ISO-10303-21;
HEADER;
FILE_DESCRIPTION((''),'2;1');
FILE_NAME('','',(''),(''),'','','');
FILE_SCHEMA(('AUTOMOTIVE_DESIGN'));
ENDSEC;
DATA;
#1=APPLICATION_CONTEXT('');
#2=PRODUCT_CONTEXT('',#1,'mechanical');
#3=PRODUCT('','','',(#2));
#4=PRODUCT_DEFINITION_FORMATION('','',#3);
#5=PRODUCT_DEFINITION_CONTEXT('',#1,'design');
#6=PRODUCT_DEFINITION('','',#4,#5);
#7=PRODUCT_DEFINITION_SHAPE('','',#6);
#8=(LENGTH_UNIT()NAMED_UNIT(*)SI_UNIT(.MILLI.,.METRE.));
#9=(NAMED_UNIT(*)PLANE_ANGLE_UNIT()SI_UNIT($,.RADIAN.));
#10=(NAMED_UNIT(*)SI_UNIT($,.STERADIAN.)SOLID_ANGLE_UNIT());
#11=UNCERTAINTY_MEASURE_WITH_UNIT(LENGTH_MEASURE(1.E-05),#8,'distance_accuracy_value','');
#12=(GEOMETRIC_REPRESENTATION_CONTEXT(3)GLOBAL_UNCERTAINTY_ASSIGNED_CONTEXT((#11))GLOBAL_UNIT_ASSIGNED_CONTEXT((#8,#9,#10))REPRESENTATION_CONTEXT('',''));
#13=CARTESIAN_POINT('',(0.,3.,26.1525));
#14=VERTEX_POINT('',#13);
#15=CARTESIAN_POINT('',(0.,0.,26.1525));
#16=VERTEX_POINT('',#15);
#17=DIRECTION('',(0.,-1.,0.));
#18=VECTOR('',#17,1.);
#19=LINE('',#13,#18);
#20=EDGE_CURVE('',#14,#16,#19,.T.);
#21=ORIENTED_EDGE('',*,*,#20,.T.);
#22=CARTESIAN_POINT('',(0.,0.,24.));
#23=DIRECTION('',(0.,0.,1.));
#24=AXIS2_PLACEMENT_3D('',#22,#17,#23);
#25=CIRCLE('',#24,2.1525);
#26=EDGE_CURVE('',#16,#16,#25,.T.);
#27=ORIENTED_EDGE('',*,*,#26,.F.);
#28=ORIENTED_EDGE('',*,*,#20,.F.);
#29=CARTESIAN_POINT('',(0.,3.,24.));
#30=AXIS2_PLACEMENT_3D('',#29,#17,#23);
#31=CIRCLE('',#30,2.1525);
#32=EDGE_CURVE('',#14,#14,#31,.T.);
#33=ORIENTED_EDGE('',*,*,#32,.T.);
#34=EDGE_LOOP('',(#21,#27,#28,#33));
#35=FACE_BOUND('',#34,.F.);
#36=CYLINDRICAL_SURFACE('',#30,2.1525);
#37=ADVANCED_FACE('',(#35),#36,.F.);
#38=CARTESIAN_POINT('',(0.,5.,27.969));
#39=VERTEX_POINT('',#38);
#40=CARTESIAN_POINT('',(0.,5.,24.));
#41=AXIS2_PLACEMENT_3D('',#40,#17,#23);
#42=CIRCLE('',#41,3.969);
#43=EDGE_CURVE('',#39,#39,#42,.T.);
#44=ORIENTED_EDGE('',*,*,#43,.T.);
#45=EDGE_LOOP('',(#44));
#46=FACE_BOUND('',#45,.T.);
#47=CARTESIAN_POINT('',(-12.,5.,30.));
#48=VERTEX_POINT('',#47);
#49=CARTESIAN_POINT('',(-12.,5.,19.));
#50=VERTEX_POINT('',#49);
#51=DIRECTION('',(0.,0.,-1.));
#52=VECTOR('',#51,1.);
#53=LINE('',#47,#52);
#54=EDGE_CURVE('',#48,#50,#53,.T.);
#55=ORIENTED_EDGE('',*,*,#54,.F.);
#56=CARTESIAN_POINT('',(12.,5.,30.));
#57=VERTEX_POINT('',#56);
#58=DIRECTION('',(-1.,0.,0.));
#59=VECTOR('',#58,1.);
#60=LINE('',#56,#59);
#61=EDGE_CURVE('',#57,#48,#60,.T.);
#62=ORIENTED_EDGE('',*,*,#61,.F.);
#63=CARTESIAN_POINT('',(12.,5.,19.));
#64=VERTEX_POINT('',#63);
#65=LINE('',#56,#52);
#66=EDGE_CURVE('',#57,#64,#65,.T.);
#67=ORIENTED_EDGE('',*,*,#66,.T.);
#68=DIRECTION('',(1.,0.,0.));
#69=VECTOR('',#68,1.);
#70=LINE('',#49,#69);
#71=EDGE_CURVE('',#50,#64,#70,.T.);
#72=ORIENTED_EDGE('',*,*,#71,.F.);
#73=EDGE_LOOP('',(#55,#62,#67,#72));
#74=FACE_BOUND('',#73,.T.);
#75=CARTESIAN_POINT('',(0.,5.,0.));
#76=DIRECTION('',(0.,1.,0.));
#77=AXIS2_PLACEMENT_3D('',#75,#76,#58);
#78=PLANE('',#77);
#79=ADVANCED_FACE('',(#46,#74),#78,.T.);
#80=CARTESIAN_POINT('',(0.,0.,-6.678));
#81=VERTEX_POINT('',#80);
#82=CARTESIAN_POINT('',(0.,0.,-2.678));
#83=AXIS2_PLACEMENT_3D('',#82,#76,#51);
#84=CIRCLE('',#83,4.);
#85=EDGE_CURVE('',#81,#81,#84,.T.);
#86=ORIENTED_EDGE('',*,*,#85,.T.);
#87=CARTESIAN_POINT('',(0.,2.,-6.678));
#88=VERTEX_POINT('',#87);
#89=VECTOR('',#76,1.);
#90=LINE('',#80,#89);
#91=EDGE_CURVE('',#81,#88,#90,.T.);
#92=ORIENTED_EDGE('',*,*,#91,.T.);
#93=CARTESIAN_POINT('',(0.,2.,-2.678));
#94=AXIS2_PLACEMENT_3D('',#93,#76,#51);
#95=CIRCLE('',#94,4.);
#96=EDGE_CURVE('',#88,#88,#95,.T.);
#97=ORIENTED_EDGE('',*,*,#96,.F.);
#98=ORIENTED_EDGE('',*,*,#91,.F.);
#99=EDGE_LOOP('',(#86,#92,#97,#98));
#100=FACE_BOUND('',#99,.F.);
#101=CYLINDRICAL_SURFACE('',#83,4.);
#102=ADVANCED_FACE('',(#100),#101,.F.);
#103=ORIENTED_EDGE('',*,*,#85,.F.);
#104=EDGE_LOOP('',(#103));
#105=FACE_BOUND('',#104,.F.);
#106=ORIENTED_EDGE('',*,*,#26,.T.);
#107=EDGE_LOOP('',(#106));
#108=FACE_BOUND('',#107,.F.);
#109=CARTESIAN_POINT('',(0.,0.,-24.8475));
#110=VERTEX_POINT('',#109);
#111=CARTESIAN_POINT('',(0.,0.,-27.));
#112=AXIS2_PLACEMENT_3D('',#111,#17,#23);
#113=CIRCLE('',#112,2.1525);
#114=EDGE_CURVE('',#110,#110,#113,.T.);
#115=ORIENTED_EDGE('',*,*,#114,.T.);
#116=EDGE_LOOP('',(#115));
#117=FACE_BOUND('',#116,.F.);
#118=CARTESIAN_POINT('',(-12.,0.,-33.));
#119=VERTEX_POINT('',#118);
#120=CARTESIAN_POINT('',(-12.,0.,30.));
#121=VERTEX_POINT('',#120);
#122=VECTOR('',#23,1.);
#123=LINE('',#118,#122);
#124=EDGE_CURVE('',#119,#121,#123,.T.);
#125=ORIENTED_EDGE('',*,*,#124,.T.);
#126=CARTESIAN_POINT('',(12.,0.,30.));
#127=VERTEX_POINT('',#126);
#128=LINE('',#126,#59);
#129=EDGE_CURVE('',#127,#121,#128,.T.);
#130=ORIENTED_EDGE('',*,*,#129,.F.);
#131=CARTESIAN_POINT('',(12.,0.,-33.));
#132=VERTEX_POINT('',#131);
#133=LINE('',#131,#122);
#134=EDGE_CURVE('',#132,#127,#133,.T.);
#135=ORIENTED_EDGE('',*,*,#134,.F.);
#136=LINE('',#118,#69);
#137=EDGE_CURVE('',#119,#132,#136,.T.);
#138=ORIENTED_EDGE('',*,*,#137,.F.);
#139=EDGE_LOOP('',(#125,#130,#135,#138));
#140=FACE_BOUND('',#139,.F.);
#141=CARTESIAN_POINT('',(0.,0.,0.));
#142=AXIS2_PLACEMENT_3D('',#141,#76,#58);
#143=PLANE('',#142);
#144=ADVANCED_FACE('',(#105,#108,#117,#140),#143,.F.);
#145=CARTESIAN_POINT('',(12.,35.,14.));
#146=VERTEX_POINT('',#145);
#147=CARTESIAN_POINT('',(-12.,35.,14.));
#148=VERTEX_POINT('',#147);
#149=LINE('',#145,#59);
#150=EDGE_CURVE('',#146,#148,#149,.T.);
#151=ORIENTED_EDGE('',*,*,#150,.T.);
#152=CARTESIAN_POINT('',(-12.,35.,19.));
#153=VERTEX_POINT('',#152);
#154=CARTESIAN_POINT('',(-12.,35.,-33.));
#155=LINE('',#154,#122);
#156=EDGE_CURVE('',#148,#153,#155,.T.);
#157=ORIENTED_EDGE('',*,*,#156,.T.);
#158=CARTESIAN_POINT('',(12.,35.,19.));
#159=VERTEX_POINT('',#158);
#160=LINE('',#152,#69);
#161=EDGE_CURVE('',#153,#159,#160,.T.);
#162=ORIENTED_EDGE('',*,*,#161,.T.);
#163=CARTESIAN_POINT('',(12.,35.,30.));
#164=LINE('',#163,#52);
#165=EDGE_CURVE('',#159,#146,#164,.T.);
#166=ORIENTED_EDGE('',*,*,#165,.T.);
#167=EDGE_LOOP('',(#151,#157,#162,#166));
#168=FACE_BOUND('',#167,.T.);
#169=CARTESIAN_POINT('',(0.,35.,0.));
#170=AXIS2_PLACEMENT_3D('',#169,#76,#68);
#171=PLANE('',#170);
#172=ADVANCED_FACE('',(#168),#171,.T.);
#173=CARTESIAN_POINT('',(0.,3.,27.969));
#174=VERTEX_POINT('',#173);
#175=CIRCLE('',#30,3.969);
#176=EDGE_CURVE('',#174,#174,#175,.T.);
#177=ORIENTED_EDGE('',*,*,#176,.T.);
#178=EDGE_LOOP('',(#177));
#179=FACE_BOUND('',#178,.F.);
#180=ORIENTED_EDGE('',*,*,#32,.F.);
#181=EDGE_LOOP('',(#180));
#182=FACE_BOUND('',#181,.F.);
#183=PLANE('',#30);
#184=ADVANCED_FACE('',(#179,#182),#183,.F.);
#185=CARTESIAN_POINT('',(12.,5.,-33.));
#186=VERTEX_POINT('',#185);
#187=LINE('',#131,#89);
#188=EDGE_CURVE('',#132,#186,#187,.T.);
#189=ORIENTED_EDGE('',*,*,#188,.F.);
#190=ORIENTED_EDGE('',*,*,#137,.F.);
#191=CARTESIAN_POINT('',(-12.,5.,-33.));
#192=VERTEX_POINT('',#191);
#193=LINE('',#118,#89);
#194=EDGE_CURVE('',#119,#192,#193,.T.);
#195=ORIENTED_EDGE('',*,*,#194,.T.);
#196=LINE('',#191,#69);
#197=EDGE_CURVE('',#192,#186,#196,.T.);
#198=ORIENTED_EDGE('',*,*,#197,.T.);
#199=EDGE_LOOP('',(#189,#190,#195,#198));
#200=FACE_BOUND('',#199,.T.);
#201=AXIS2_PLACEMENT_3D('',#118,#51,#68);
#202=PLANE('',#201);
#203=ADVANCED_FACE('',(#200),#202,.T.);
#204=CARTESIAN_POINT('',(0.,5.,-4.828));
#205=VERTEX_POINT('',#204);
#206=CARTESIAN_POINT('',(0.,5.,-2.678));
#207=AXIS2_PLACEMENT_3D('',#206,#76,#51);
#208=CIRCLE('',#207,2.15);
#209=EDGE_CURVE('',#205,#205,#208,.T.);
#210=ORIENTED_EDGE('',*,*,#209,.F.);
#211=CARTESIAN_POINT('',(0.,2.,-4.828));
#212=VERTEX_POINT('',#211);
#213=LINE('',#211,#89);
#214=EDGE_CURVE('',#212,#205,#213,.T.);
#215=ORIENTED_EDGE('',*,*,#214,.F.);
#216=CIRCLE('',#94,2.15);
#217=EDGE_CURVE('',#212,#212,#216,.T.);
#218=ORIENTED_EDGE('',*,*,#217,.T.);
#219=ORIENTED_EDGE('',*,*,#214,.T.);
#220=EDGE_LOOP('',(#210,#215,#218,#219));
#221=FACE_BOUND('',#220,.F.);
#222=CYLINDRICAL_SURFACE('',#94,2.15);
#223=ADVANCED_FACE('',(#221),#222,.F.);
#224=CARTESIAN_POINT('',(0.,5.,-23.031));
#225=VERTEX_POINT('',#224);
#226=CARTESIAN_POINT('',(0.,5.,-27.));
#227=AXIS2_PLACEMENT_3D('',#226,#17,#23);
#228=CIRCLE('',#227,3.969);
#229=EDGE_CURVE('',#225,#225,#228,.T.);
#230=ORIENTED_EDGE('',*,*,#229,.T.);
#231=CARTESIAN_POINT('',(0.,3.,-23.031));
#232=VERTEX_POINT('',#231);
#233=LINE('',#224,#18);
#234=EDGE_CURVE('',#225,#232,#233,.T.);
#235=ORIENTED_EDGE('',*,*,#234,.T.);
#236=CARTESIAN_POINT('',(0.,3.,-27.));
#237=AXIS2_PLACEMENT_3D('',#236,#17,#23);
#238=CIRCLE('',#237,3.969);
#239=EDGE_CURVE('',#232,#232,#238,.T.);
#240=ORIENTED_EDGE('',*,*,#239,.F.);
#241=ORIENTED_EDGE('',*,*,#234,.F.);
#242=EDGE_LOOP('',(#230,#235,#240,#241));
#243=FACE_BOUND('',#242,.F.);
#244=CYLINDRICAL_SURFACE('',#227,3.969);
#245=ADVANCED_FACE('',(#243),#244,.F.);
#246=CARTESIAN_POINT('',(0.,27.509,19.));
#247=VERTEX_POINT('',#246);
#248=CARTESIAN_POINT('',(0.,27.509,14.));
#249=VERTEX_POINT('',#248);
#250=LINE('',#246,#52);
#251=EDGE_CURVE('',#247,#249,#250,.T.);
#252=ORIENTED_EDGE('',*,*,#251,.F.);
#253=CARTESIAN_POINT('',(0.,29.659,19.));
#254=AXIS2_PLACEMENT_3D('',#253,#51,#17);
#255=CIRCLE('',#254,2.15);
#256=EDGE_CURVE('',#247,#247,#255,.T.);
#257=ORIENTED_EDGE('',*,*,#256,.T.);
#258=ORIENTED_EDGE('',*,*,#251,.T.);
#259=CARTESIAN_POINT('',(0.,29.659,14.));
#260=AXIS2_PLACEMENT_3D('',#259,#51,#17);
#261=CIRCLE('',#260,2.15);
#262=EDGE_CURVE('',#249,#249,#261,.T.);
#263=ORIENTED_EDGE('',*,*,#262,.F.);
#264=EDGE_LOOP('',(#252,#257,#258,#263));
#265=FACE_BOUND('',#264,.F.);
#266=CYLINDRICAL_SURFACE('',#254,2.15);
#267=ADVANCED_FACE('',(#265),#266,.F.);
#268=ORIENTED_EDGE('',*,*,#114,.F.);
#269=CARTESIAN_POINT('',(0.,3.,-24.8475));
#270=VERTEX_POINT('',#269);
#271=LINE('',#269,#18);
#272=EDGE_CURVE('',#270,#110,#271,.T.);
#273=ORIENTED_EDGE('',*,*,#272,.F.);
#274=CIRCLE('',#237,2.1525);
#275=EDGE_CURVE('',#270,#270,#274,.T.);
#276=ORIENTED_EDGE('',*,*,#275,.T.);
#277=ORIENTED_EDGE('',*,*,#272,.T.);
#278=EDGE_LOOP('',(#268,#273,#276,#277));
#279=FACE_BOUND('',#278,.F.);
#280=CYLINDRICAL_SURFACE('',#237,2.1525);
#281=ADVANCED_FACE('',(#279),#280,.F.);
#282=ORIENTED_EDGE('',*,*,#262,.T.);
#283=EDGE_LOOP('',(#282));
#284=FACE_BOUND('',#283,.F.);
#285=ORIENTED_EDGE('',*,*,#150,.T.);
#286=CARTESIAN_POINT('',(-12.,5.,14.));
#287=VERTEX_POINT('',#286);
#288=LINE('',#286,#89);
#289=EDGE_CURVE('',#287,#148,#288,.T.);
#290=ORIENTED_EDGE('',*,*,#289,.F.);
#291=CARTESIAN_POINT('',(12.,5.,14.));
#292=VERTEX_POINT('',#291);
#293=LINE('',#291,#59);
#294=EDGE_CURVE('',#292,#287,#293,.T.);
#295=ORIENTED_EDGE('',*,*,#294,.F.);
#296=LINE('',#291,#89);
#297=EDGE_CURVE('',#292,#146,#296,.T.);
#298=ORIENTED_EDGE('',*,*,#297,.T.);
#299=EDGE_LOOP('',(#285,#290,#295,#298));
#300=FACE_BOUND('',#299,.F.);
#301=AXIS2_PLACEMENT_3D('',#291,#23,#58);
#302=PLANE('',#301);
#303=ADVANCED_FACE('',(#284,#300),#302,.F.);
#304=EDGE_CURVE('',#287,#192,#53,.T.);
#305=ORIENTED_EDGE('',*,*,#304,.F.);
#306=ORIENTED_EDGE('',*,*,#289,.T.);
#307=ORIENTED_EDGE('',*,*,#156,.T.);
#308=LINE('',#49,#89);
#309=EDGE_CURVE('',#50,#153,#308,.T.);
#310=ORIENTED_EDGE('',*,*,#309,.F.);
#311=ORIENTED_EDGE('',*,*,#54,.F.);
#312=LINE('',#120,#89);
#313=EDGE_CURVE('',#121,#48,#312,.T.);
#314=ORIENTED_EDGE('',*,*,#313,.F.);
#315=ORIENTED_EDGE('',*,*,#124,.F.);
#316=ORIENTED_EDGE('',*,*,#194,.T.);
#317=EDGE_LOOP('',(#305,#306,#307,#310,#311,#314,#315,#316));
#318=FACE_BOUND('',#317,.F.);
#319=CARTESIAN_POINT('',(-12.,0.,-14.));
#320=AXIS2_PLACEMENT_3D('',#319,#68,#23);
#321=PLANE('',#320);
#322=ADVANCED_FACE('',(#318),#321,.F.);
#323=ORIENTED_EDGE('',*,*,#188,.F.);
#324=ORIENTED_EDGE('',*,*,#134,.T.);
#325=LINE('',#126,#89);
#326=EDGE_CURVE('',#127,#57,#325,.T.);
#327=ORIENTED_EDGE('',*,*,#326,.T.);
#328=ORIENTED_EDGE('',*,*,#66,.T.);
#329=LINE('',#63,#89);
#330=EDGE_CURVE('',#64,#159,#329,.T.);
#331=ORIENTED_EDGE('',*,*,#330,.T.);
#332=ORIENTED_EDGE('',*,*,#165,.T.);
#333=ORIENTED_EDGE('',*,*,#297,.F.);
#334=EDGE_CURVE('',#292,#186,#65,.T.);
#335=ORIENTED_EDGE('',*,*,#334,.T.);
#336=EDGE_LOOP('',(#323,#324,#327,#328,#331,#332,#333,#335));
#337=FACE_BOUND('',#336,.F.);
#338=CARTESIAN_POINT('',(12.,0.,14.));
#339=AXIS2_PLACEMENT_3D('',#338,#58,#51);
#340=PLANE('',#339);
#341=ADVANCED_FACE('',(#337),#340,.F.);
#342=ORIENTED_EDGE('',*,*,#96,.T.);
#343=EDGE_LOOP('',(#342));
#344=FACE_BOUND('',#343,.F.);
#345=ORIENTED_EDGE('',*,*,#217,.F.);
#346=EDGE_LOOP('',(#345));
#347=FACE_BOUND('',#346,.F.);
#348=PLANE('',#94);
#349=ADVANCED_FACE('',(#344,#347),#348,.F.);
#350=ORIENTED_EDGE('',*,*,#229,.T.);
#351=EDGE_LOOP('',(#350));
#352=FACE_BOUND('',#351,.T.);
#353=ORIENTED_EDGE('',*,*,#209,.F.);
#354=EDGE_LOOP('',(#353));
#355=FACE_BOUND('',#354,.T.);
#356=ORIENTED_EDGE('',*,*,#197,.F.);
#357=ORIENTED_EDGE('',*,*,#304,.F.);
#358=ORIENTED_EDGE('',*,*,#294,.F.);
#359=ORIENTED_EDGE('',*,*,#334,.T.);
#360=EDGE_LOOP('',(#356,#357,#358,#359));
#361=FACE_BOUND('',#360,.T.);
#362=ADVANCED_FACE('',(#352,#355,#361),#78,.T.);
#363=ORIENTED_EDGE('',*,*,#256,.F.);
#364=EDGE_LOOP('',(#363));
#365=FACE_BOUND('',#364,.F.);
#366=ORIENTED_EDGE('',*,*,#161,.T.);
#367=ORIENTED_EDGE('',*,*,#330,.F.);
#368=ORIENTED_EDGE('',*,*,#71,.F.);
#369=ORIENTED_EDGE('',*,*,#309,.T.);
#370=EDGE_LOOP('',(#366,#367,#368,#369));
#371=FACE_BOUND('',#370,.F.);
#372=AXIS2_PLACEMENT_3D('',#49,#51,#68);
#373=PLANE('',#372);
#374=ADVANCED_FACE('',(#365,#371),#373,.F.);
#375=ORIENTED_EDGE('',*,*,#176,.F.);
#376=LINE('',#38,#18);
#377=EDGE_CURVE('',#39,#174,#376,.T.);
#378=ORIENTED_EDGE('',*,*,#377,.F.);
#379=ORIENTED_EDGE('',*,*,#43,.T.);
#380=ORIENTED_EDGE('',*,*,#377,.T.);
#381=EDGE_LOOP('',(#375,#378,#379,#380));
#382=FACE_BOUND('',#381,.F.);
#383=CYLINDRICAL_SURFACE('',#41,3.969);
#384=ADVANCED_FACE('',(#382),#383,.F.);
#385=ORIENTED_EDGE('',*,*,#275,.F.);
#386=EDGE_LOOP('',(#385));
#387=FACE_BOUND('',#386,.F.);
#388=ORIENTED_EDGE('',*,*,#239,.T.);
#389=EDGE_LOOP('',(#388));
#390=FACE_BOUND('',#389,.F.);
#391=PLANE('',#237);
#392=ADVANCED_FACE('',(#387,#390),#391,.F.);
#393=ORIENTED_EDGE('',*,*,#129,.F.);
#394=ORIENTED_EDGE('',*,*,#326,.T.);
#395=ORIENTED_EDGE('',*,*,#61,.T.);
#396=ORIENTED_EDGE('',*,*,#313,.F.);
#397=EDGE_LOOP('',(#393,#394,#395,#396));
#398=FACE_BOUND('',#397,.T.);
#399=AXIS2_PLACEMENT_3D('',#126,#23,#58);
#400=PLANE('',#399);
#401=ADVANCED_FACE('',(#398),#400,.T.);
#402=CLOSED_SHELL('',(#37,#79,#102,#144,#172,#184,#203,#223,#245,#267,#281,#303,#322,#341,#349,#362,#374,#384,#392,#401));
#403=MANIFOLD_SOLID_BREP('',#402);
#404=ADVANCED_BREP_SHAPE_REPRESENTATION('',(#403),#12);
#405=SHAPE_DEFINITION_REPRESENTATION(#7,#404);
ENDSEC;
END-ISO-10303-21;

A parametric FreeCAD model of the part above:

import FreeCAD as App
import Part
import Sketcher

V = App.Vector

doc = App.newDocument("Part")
body = doc.addObject("PartDesign::Body", "Body")

# Sketch on XZ plane
sketch1 = body.newObject("Sketcher::SketchObject", "Sketch")
sketch1.AttachmentSupport = (doc.getObject("XZ_Plane"), [""])
sketch1.MapMode = "FlatFace"
sketch1.addGeometry([
    Part.LineSegment(V(-12, 30, 0), V(12, 30, 0)),
    Part.LineSegment(V(12, 30, 0), V(12, -33, 0)),
    Part.LineSegment(V(12, -33, 0), V(-12, -33, 0)),
    Part.LineSegment(V(-12, -33, 0), V(-12, 30, 0)),
], False)
sketch1.addConstraint([
    Sketcher.Constraint("Coincident", 0, 2, 1, 1),
    Sketcher.Constraint("Coincident", 1, 2, 2, 1),
    Sketcher.Constraint("Coincident", 2, 2, 3, 1),
    Sketcher.Constraint("Coincident", 3, 2, 0, 1),
    Sketcher.Constraint("Horizontal", 0),
    Sketcher.Constraint("Vertical", 1),
    Sketcher.Constraint("Horizontal", 2),
    Sketcher.Constraint("Vertical", 3),
    Sketcher.Constraint("DistanceX", 0, 1, 0, 2, 24.0),
    Sketcher.Constraint("DistanceY", 1, 2, 1, 1, 63.0),
    Sketcher.Constraint("DistanceX", -1, 1, 0, 2, 12.0),
    Sketcher.Constraint("DistanceY", -1, 1, 0, 2, 30.0),
])
pad1 = body.newObject("PartDesign::Pad", "Pad")
pad1.Profile = sketch1
pad1.Length = 5
pad1.Reversed = True

# Sketch on XZ plane
sketch2 = body.newObject("Sketcher::SketchObject", "Sketch001")
sketch2.AttachmentSupport = (doc.getObject("XZ_Plane"), [""])
sketch2.MapMode = "FlatFace"
sketch2.AttachmentOffset = App.Placement(V(0, 0, -5), App.Rotation())
sketch2.addGeometry([
    Part.Circle(V(0, -27, 0), V(0, 0, 1), 2.1525),
    Part.Circle(V(0, 24, 0), V(0, 0, 1), 2.1525),
], False)
sketch2.addConstraint([
    Sketcher.Constraint("Equal", 0, 1),
    Sketcher.Constraint("PointOnObject", 0, 3, -2),
    Sketcher.Constraint("PointOnObject", 1, 3, -2),
    Sketcher.Constraint("Diameter", 0, 4.305),
    Sketcher.Constraint("DistanceY", 0, 3, -1, 1, 27.0),
    Sketcher.Constraint("DistanceY", -1, 1, 1, 3, 24.0),
])
doc.recompute()
hole = body.newObject("PartDesign::Hole", "Hole")
hole.Profile = sketch2
hole.ThreadType = "None"
hole.Diameter = 4.305
hole.DepthType = "ThroughAll"
hole.HoleCutType = "Counterbore"
hole.HoleCutDiameter = 7.938
hole.HoleCutDepth = 2
hole.Reversed = True

# Sketch on XZ plane
sketch3 = body.newObject("Sketcher::SketchObject", "Sketch002")
sketch3.AttachmentSupport = (doc.getObject("XZ_Plane"), [""])
sketch3.MapMode = "FlatFace"
sketch3.AttachmentOffset = App.Placement(V(0, 0, -5), App.Rotation())
sketch3.addGeometry([
    Part.LineSegment(V(-12, 19, 0), V(12, 19, 0)),
    Part.LineSegment(V(12, 19, 0), V(12, 14, 0)),
    Part.LineSegment(V(12, 14, 0), V(-12, 14, 0)),
    Part.LineSegment(V(-12, 14, 0), V(-12, 19, 0)),
], False)
sketch3.addConstraint([
    Sketcher.Constraint("Coincident", 0, 2, 1, 1),
    Sketcher.Constraint("Coincident", 1, 2, 2, 1),
    Sketcher.Constraint("Coincident", 2, 2, 3, 1),
    Sketcher.Constraint("Coincident", 3, 2, 0, 1),
    Sketcher.Constraint("Horizontal", 0),
    Sketcher.Constraint("Vertical", 1),
    Sketcher.Constraint("Horizontal", 2),
    Sketcher.Constraint("Vertical", 3),
    Sketcher.Constraint("DistanceY", 1, 2, 1, 1, 5.0),
    Sketcher.Constraint("DistanceY", -1, 1, 1, 2, 14.0),
    Sketcher.Constraint("DistanceX", 0, 1, 0, 2, 24.0),
    Sketcher.Constraint("DistanceX", -1, 1, 0, 2, 12.0),
])
pad2 = body.newObject("PartDesign::Pad", "Pad001")
pad2.Profile = sketch3
pad2.Length = 30
pad2.Reversed = True

# Sketch on XY plane
sketch4 = body.newObject("Sketcher::SketchObject", "Sketch003")
sketch4.AttachmentSupport = (doc.getObject("XY_Plane"), [""])
sketch4.MapMode = "FlatFace"
sketch4.AttachmentOffset = App.Placement(V(0, 0, 19), App.Rotation())
sketch4.addGeometry(Part.Circle(V(0, 29.659, 0), V(0, 0, 1), 2.15), False)
sketch4.addConstraint([
    Sketcher.Constraint("PointOnObject", 0, 3, -2),
    Sketcher.Constraint("Diameter", 0, 4.3),
    Sketcher.Constraint("DistanceY", -1, 1, 0, 3, 29.659),
])
doc.recompute()
hole2 = body.newObject("PartDesign::Hole", "Hole001")
hole2.Profile = sketch4
hole2.ThreadType = "None"
hole2.Diameter = 4.3
hole2.DepthType = "Dimension"
hole2.Depth = 11.8
hole2.DrillPoint = "Flat"

# Sketch on XZ plane
sketch5 = body.newObject("Sketcher::SketchObject", "Sketch004")
sketch5.AttachmentSupport = (doc.getObject("XZ_Plane"), [""])
sketch5.MapMode = "FlatFace"
sketch5.addGeometry(Part.Circle(V(0, -2.678, 0), V(0, 0, 1), 2.15), False)
sketch5.addConstraint([
    Sketcher.Constraint("PointOnObject", 0, 3, -2),
    Sketcher.Constraint("Diameter", 0, 4.3),
    Sketcher.Constraint("DistanceY", 0, 3, -1, 1, 2.678),
])
doc.recompute()
hole3 = body.newObject("PartDesign::Hole", "Hole002")
hole3.Profile = sketch5
hole3.ThreadType = "None"
hole3.Diameter = 4.3
hole3.DepthType = "Dimension"
hole3.Depth = 11.8
hole3.DrillPoint = "Flat"
hole3.HoleCutType = "Counterbore"
hole3.HoleCutDiameter = 8
hole3.HoleCutDepth = 2

doc.recompute()
